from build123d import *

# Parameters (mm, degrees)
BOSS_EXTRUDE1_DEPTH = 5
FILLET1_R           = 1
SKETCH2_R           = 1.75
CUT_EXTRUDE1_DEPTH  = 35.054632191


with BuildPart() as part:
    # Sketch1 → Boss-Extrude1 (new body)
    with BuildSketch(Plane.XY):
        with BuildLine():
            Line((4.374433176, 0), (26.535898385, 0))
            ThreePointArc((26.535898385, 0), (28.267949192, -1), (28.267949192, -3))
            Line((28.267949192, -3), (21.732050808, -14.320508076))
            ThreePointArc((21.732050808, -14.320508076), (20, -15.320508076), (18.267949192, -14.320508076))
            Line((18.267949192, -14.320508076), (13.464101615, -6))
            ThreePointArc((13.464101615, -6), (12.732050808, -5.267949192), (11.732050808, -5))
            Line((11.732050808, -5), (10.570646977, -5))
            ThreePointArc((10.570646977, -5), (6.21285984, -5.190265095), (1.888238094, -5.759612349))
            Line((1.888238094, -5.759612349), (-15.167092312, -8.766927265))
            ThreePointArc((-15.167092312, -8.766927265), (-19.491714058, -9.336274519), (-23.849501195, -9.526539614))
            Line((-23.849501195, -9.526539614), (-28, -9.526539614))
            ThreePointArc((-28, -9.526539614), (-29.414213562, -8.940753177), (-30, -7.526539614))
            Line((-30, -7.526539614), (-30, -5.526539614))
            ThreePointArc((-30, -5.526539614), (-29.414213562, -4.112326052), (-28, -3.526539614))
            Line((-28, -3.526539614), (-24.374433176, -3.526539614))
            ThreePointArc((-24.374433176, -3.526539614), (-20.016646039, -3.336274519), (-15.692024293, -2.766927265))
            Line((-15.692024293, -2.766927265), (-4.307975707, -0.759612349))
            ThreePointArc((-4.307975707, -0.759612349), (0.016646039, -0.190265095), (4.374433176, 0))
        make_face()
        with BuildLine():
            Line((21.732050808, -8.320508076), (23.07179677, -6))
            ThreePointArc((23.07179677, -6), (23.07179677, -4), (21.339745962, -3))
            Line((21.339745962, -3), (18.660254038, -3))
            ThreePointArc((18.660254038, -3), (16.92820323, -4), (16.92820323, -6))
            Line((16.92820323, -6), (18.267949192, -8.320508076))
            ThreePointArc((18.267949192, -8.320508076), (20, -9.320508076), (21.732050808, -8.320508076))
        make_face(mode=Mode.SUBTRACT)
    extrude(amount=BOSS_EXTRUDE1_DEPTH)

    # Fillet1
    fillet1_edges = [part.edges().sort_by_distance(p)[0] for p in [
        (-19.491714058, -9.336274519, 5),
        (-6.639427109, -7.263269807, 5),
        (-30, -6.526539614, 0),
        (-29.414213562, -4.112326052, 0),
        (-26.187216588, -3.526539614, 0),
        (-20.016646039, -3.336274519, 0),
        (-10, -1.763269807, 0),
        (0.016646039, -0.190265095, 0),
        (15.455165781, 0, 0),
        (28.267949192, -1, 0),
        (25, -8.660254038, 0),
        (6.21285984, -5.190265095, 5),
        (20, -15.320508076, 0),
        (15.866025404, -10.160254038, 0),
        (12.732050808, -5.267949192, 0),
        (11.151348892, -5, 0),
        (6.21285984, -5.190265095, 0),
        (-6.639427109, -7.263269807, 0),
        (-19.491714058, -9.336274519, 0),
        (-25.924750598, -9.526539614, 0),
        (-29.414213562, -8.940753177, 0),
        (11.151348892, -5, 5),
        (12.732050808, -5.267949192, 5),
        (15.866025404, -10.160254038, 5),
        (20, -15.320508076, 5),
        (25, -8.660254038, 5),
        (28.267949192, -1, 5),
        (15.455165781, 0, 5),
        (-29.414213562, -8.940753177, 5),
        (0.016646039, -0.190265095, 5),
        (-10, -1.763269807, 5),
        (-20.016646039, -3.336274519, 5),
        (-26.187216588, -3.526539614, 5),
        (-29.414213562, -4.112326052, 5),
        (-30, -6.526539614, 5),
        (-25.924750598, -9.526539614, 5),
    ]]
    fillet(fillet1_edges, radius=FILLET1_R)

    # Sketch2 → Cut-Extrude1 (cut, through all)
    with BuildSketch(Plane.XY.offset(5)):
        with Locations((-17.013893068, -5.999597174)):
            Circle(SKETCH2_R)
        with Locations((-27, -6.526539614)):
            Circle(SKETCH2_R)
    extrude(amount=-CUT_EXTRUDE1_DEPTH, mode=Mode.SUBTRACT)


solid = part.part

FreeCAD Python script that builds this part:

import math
import FreeCAD as App
import Part
import Sketcher

V = App.Vector
Q = App.Units.Quantity


def edges_at(feature, points):
    """Names of the edges that pass closest to the given points."""
    edges = feature.Shape.Edges
    near = lambda p: min(range(len(edges)), key=lambda i: edges[i].distToShape(Part.Vertex(*p))[0])
    return sorted({f"Edge{near(p) + 1}" for p in points})

doc = App.newDocument("Part")
body = doc.addObject("PartDesign::Body", "Body")

sketch1 = body.newObject("Sketcher::SketchObject", "Sketch")
sketch1.AttachmentSupport = (doc.getObject("XY_Plane"), [""])
sketch1.MapMode = "FlatFace"
sketch1.addGeometry(Part.LineSegment(V(26.5, 0, 0), V(4.4, 0, 0)), False)
sketch1.addGeometry(Part.ArcOfCircle(Part.Circle(V(4.4, -50, 0), V(0, 0, 1), 50), math.radians(90), math.radians(100)), False)
sketch1.addGeometry(Part.LineSegment(V(-4.3, -0.8, 0), V(-15.7, -2.8, 0)), False)
sketch1.addGeometry(Part.ArcOfCircle(Part.Circle(V(-24.4, 46.5, 0), V(0, 0, 1), 50), math.radians(-90), math.radians(-80)), False)
sketch1.addGeometry(Part.LineSegment(V(-24.4, -3.5, 0), V(-28, -3.5, 0)), False)
sketch1.addGeometry(Part.ArcOfCircle(Part.Circle(V(-28, -5.5, 0), V(0, 0, 1), 2), math.radians(90), math.radians(180)), False)
sketch1.addGeometry(Part.LineSegment(V(-30, -5.5, 0), V(-30, -7.5, 0)), False)
sketch1.addGeometry(Part.ArcOfCircle(Part.Circle(V(-28, -7.5, 0), V(0, 0, 1), 2), math.radians(180), math.radians(270)), False)
sketch1.addGeometry(Part.LineSegment(V(-28, -9.5, 0), V(-23.8, -9.5, 0)), False)
sketch1.addGeometry(Part.ArcOfCircle(Part.Circle(V(-23.8, 40.5, 0), V(0, 0, 1), 50), math.radians(-90), math.radians(-80)), False)
sketch1.addGeometry(Part.LineSegment(V(-15.2, -8.8, 0), V(1.9, -5.8, 0)), False)
sketch1.addGeometry(Part.ArcOfCircle(Part.Circle(V(10.6, -55, 0), V(0, 0, 1), 50), math.radians(90), math.radians(100)), False)
sketch1.addGeometry(Part.LineSegment(V(10.6, -5, 0), V(11.7, -5, 0)), False)
sketch1.addGeometry(Part.ArcOfCircle(Part.Circle(V(11.7, -7, 0), V(0, 0, 1), 2), math.radians(30), math.radians(90)), False)
sketch1.addGeometry(Part.LineSegment(V(13.5, -6, 0), V(18.3, -14.3, 0)), False)
sketch1.addGeometry(Part.ArcOfCircle(Part.Circle(V(20, -13.3, 0), V(0, 0, 1), 2), math.radians(-150), math.radians(-30)), False)
sketch1.addGeometry(Part.LineSegment(V(21.7, -14.3, 0), V(28.3, -3, 0)), False)
sketch1.addGeometry(Part.ArcOfCircle(Part.Circle(V(26.5, -2, 0), V(0, 0, 1), 2), math.radians(-30), math.radians(90)), False)
sketch1.addGeometry(Part.ArcOfCircle(Part.Circle(V(20, -7.3, 0), V(0, 0, 1), 2), math.radians(-150), math.radians(-30)), False)
sketch1.addGeometry(Part.LineSegment(V(18.3, -8.3, 0), V(16.9, -6, 0)), False)
sketch1.addGeometry(Part.ArcOfCircle(Part.Circle(V(18.7, -5, 0), V(0, 0, 1), 2), math.radians(90), math.radians(210)), False)
sketch1.addGeometry(Part.LineSegment(V(18.7, -3, 0), V(21.3, -3, 0)), False)
sketch1.addGeometry(Part.ArcOfCircle(Part.Circle(V(21.3, -5, 0), V(0, 0, 1), 2), math.radians(-30), math.radians(90)), False)
sketch1.addGeometry(Part.LineSegment(V(23.1, -6, 0), V(21.7, -8.3, 0)), False)
sketch1.addConstraint(Sketcher.Constraint("Tangent", 0, 2, 1, 1))
sketch1.addConstraint(Sketcher.Constraint("Tangent", 1, 2, 2, 1))
sketch1.addConstraint(Sketcher.Constraint("Tangent", 2, 2, 3, 2))
sketch1.addConstraint(Sketcher.Constraint("Tangent", 3, 1, 4, 1))
sketch1.addConstraint(Sketcher.Constraint("Tangent", 4, 2, 5, 1))
sketch1.addConstraint(Sketcher.Constraint("Tangent", 5, 2, 6, 1))
sketch1.addConstraint(Sketcher.Constraint("Tangent", 6, 2, 7, 1))
sketch1.addConstraint(Sketcher.Constraint("Tangent", 7, 2, 8, 1))
sketch1.addConstraint(Sketcher.Constraint("Tangent", 8, 2, 9, 1))
sketch1.addConstraint(Sketcher.Constraint("Tangent", 9, 2, 10, 1))
sketch1.addConstraint(Sketcher.Constraint("Tangent", 10, 2, 11, 2))
sketch1.addConstraint(Sketcher.Constraint("Tangent", 11, 1, 12, 1))
sketch1.addConstraint(Sketcher.Constraint("Tangent", 12, 2, 13, 2))
sketch1.addConstraint(Sketcher.Constraint("Tangent", 13, 1, 14, 1))
sketch1.addConstraint(Sketcher.Constraint("Tangent", 14, 2, 15, 1))
sketch1.addConstraint(Sketcher.Constraint("Tangent", 15, 2, 16, 1))
sketch1.addConstraint(Sketcher.Constraint("Tangent", 16, 2, 17, 1))
sketch1.addConstraint(Sketcher.Constraint("Tangent", 17, 2, 0, 1))
sketch1.addConstraint(Sketcher.Constraint("Tangent", 18, 1, 19, 1))
sketch1.addConstraint(Sketcher.Constraint("Tangent", 19, 2, 20, 2))
sketch1.addConstraint(Sketcher.Constraint("Tangent", 20, 1, 21, 1))
sketch1.addConstraint(Sketcher.Constraint("Tangent", 21, 2, 22, 2))
sketch1.addConstraint(Sketcher.Constraint("Tangent", 22, 1, 23, 1))
sketch1.addConstraint(Sketcher.Constraint("Tangent", 23, 2, 18, 2))
sketch1.addConstraint(Sketcher.Constraint("Horizontal", 0))
sketch1.addConstraint(Sketcher.Constraint("Horizontal", 4))
sketch1.addConstraint(Sketcher.Constraint("Vertical", 6))
sketch1.addConstraint(Sketcher.Constraint("Horizontal", 8))
sketch1.addConstraint(Sketcher.Constraint("Horizontal", 12))
sketch1.addConstraint(Sketcher.Constraint("Horizontal", 21))
sketch1.addConstraint(Sketcher.Constraint("Equal", 1, 3))
sketch1.addConstraint(Sketcher.Constraint("Equal", 5, 7))
sketch1.addConstraint(Sketcher.Constraint("Equal", 3, 9))
sketch1.addConstraint(Sketcher.Constraint("Equal", 9, 11))
sketch1.addConstraint(Sketcher.Constraint("Equal", 7, 13))
sketch1.addConstraint(Sketcher.Constraint("Equal", 13, 15))
sketch1.addConstraint(Sketcher.Constraint("Equal", 15, 17))
sketch1.addConstraint(Sketcher.Constraint("Equal", 17, 18))
sketch1.addConstraint(Sketcher.Constraint("Equal", 18, 20))
sketch1.addConstraint(Sketcher.Constraint("Equal", 20, 22))
sketch1.addConstraint(Sketcher.Constraint("PointOnObject", 0, 2, -1))
sketch1.addConstraint(Sketcher.Constraint("Parallel", 2, 10))
sketch1.addConstraint(Sketcher.Constraint("Parallel", 14, 19))
sketch1.addConstraint(Sketcher.Constraint("Parallel", 16, 23))
sketch1.addConstraint(Sketcher.Constraint("Horizontal", 22, 3, 11, 1))
sketch1.addConstraint(Sketcher.Constraint("Horizontal", 14, 2, 15, 2))
sketch1.addConstraint(Sketcher.Constraint("Horizontal", 13, 1, 19, 2))
sketch1.addConstraint(Sketcher.Constraint("Horizontal", 16, 2, 20, 1))
sketch1.addConstraint(Sketcher.Constraint("Vertical", 15, 3, 18, 3))
sketch1.addConstraint(Sketcher.Constraint("Radius", 1, 50.0))
sketch1.addConstraint(Sketcher.Constraint("Radius", 5, 2.0))
sketch1.addConstraint(Sketcher.Constraint("DistanceY", 6, 2, 6, 1, 2.0))
sketch1.addConstraint(Sketcher.Constraint("Angle", 2, Q("-170 deg")))
sketch1.addConstraint(Sketcher.Constraint("DistanceX", 5, 3, -1, 1, 28.0))
sketch1.addConstraint(Sketcher.Constraint("DistanceX", -1, 1, 15, 3, 20.0))
sketch1.addConstraint(Sketcher.Constraint("DistanceY", 15, 3, 18, 3, 6.0))
sketch1.addConstraint(Sketcher.Constraint("DistanceX", 8, 1, 8, 2, 4.150499))
sketch1.addConstraint(Sketcher.Constraint("DistanceX", 21, 1, 21, 2, 2.679492))
sketch1.addConstraint(Sketcher.Constraint("DistanceX", 0, 2, 0, 1, 22.161465))
sketch1.addConstraint(Sketcher.Constraint("DistanceX", 4, 2, 4, 1, 3.625567))
pad1 = body.newObject("PartDesign::Pad", "Pad")
pad1.Profile = sketch1
pad1.Length = 5
doc.recompute()

fillet = body.newObject("PartDesign::Fillet", "Fillet")
fillet.Base = (pad1, edges_at(pad1, [
    (-19.492, -9.336, 5),
    (-6.639, -7.263, 5),
    (-30, -6.527, 0),
    (-29.414, -4.112, 0),
    (-26.187, -3.527, 0),
    (-20.017, -3.336, 0),
    (-10, -1.763, 0),
    (0.017, -0.19, 0),
    (15.455, 0, 0),
    (28.268, -1, 0),
    (25, -8.66, 0),
    (6.213, -5.19, 5),
    (20, -15.321, 0),
    (15.866, -10.16, 0),
    (12.732, -5.268, 0),
    (11.151, -5, 0),
    (6.213, -5.19, 0),
    (-6.639, -7.263, 0),
    (-19.492, -9.336, 0),
    (-25.925, -9.527, 0),
    (-29.414, -8.941, 0),
    (11.151, -5, 5),
    (12.732, -5.268, 5),
    (15.866, -10.16, 5),
    (20, -15.321, 5),
    (25, -8.66, 5),
    (28.268, -1, 5),
    (15.455, 0, 5),
    (-29.414, -8.941, 5),
    (0.017, -0.19, 5),
    (-10, -1.763, 5),
    (-20.017, -3.336, 5),
    (-26.187, -3.527, 5),
    (-29.414, -4.112, 5),
    (-30, -6.527, 5),
    (-25.925, -9.527, 5),
]))
fillet.Radius = 1

sketch2 = body.newObject("Sketcher::SketchObject", "Sketch001")
sketch2.AttachmentSupport = (doc.getObject("XY_Plane"), [""])
sketch2.MapMode = "FlatFace"
sketch2.AttachmentOffset = App.Placement(V(0, 0, 5), App.Rotation())
sketch2.addGeometry(Part.Circle(V(-17, -6, 0), V(0, 0, 1), 1.8), False)
sketch2.addGeometry(Part.Circle(V(-27, -6.5, 0), V(0, 0, 1), 1.8), False)
sketch2.addConstraint(Sketcher.Constraint("Equal", 0, 1))
sketch2.addConstraint(Sketcher.Constraint("Diameter", 0, 3.5))
sketch2.addConstraint(Sketcher.Constraint("DistanceX", 1, 3, -1, 1, 27.0))
sketch2.addConstraint(Sketcher.Constraint("DistanceY", 1, 3, -1, 1, 6.52654))
sketch2.addConstraint(Sketcher.Constraint("DistanceX", 0, 3, -1, 1, 17.013893))
sketch2.addConstraint(Sketcher.Constraint("DistanceY", 0, 3, -1, 1, 5.999597))
pocket1 = body.newObject("PartDesign::Pocket", "Pocket")
pocket1.Profile = sketch2
pocket1.Type = "ThroughAll"

doc.recompute()
